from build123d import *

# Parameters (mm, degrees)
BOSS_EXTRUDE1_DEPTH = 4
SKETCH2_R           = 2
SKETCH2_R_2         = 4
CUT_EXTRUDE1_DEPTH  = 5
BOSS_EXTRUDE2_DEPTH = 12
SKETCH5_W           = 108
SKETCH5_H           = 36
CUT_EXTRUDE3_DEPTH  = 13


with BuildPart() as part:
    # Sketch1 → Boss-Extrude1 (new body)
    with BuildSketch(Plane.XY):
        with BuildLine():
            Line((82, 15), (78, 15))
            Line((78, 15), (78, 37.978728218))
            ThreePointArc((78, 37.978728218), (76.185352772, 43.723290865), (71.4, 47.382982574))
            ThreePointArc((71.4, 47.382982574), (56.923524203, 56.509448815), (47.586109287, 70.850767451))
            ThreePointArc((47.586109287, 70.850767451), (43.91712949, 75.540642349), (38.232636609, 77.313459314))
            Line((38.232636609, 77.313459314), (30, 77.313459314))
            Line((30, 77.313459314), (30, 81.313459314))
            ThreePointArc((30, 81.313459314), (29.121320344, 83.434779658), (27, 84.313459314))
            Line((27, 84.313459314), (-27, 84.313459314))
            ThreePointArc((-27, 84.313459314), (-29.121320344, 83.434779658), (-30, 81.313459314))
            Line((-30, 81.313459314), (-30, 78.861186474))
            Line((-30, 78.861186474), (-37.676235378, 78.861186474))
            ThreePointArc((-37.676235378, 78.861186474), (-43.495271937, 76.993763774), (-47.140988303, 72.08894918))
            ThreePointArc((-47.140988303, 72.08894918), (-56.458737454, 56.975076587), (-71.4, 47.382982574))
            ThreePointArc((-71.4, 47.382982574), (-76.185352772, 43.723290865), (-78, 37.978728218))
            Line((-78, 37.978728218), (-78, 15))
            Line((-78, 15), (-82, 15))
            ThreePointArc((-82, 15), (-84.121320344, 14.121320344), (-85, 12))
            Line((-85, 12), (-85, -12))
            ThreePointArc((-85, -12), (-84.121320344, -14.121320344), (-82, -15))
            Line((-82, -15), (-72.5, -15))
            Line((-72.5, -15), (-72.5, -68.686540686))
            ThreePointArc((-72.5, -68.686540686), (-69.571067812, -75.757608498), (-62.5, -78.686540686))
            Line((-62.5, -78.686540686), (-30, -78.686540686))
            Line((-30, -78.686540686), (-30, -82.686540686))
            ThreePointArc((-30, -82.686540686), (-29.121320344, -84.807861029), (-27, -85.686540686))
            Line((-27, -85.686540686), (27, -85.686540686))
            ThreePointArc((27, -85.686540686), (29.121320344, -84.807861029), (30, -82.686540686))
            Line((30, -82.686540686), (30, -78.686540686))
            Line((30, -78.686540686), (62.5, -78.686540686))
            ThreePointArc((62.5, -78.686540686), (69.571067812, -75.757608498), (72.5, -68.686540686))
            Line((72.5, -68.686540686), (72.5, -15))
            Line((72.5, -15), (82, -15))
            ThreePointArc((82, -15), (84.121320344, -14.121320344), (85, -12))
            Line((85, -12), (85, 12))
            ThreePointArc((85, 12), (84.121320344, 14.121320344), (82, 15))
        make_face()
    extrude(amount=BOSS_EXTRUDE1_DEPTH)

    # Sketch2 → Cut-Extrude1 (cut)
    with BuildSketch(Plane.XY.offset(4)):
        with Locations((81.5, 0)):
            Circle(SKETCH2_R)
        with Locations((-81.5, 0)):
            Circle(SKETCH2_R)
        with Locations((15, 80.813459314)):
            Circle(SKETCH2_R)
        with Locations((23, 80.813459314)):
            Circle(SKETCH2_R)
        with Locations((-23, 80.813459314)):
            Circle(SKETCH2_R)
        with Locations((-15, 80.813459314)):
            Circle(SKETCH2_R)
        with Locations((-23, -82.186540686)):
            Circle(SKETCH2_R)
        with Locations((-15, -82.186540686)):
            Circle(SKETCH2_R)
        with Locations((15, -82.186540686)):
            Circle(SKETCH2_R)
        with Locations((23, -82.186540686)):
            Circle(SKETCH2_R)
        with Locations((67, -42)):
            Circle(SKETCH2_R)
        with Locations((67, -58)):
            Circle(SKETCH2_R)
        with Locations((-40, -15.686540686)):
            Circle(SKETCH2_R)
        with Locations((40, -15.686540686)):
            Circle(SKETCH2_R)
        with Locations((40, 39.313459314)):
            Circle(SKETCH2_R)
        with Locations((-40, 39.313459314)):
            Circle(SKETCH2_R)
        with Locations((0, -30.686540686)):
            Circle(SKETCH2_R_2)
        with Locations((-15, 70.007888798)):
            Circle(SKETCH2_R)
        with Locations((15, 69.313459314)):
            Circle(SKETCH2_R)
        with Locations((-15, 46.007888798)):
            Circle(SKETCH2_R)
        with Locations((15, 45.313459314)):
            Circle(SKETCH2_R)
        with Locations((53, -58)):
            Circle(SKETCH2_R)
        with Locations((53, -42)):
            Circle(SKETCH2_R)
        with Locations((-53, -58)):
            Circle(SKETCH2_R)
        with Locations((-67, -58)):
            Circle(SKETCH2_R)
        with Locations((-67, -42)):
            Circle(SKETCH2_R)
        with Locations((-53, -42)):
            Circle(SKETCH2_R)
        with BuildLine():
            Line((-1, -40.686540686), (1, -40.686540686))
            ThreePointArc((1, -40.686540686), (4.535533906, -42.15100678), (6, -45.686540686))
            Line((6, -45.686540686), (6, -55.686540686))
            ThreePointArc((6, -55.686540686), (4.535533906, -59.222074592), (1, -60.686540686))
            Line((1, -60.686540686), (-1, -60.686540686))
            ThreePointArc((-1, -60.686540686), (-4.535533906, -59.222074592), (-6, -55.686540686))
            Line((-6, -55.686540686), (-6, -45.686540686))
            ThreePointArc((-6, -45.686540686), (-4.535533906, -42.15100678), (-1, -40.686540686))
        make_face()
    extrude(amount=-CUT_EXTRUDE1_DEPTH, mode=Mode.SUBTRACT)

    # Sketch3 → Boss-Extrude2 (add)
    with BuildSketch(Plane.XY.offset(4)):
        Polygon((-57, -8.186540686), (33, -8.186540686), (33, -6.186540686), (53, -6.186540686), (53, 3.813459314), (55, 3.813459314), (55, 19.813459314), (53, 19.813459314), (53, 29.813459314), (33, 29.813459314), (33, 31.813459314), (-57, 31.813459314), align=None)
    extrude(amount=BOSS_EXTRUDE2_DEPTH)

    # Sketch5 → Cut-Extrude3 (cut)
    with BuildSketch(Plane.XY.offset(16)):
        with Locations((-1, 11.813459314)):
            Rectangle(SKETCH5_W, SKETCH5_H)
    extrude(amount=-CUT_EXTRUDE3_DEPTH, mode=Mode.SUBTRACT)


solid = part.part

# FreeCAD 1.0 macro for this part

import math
import FreeCAD as App
import Part
import Sketcher
from FreeCAD import Vector
Q = App.Units.Quantity

doc = App.newDocument("Part")
body = doc.addObject("PartDesign::Body", "Body")

sketch1 = body.newObject("Sketcher::SketchObject", "Sketch")
sketch1.AttachmentSupport = (doc.getObject("XY_Plane"), [""])
sketch1.MapMode = "FlatFace"
sketch1.addGeometry(Part.LineSegment(Vector(82, 15, 0), Vector(78, 15, 0)), False)
sketch1.addGeometry(Part.LineSegment(Vector(78, 15, 0), Vector(78, 38, 0)), False)
sketch1.addGeometry(Part.ArcOfCircle(Part.Circle(Vector(68, 38, 0), Vector(0, 0, 1), 10), math.radians(0), math.radians(70)), False)
sketch1.addGeometry(Part.ArcOfCircle(Part.Circle(Vector(85, 85, 0), Vector(0, 0, 1), 40), math.radians(-159), math.radians(-110)), False)
sketch1.addGeometry(Part.ArcOfCircle(Part.Circle(Vector(38.2, 67.3, 0), Vector(0, 0, 1), 10), math.radians(21), math.radians(90)), False)
sketch1.addGeometry(Part.LineSegment(Vector(38.2, 77.3, 0), Vector(30, 77.3, 0)), False)
sketch1.addGeometry(Part.LineSegment(Vector(30, 77.3, 0), Vector(30, 81.3, 0)), False)
sketch1.addGeometry(Part.ArcOfCircle(Part.Circle(Vector(27, 81.3, 0), Vector(0, 0, 1), 3), math.radians(0), math.radians(90)), False)
sketch1.addGeometry(Part.LineSegment(Vector(27, 84.3, 0), Vector(-27, 84.3, 0)), False)
sketch1.addGeometry(Part.ArcOfCircle(Part.Circle(Vector(-27, 81.3, 0), Vector(0, 0, 1), 3), math.radians(90), math.radians(180)), False)
sketch1.addGeometry(Part.LineSegment(Vector(-30, 81.3, 0), Vector(-30, 78.9, 0)), False)
sketch1.addGeometry(Part.LineSegment(Vector(-30, 78.9, 0), Vector(-37.7, 78.9, 0)), False)
sketch1.addGeometry(Part.ArcOfCircle(Part.Circle(Vector(-37.7, 68.9, 0), Vector(0, 0, 1), 10), math.radians(90), math.radians(161)), False)
sketch1.addGeometry(Part.ArcOfCircle(Part.Circle(Vector(-85, 85, 0), Vector(0, 0, 1), 40), math.radians(-70), math.radians(-19)), False)
sketch1.addGeometry(Part.ArcOfCircle(Part.Circle(Vector(-68, 38, 0), Vector(0, 0, 1), 10), math.radians(110), math.radians(180)), False)
sketch1.addGeometry(Part.LineSegment(Vector(-78, 38, 0), Vector(-78, 15, 0)), False)
sketch1.addGeometry(Part.LineSegment(Vector(-78, 15, 0), Vector(-82, 15, 0)), False)
sketch1.addGeometry(Part.ArcOfCircle(Part.Circle(Vector(-82, 12, 0), Vector(0, 0, 1), 3), math.radians(90), math.radians(180)), False)
sketch1.addGeometry(Part.LineSegment(Vector(-85, 12, 0), Vector(-85, -12, 0)), False)
sketch1.addGeometry(Part.ArcOfCircle(Part.Circle(Vector(-82, -12, 0), Vector(0, 0, 1), 3), math.radians(180), math.radians(270)), False)
sketch1.addGeometry(Part.LineSegment(Vector(-82, -15, 0), Vector(-72.5, -15, 0)), False)
sketch1.addGeometry(Part.LineSegment(Vector(-72.5, -15, 0), Vector(-72.5, -68.7, 0)), False)
sketch1.addGeometry(Part.ArcOfCircle(Part.Circle(Vector(-62.5, -68.7, 0), Vector(0, 0, 1), 10), math.radians(180), math.radians(270)), False)
sketch1.addGeometry(Part.LineSegment(Vector(-62.5, -78.7, 0), Vector(-30, -78.7, 0)), False)
sketch1.addGeometry(Part.LineSegment(Vector(-30, -78.7, 0), Vector(-30, -82.7, 0)), False)
sketch1.addGeometry(Part.ArcOfCircle(Part.Circle(Vector(-27, -82.7, 0), Vector(0, 0, 1), 3), math.radians(180), math.radians(270)), False)
sketch1.addGeometry(Part.LineSegment(Vector(-27, -85.7, 0), Vector(27, -85.7, 0)), False)
sketch1.addGeometry(Part.ArcOfCircle(Part.Circle(Vector(27, -82.7, 0), Vector(0, 0, 1), 3), math.radians(-90), math.radians(0)), False)
sketch1.addGeometry(Part.LineSegment(Vector(30, -82.7, 0), Vector(30, -78.7, 0)), False)
sketch1.addGeometry(Part.LineSegment(Vector(30, -78.7, 0), Vector(62.5, -78.7, 0)), False)
sketch1.addGeometry(Part.ArcOfCircle(Part.Circle(Vector(62.5, -68.7, 0), Vector(0, 0, 1), 10), math.radians(-90), math.radians(0)), False)
sketch1.addGeometry(Part.LineSegment(Vector(72.5, -68.7, 0), Vector(72.5, -15, 0)), False)
sketch1.addGeometry(Part.LineSegment(Vector(72.5, -15, 0), Vector(82, -15, 0)), False)
sketch1.addGeometry(Part.ArcOfCircle(Part.Circle(Vector(82, -12, 0), Vector(0, 0, 1), 3), math.radians(-90), math.radians(0)), False)
sketch1.addGeometry(Part.LineSegment(Vector(85, -12, 0), Vector(85, 12, 0)), False)
sketch1.addGeometry(Part.ArcOfCircle(Part.Circle(Vector(82, 12, 0), Vector(0, 0, 1), 3), math.radians(0), math.radians(90)), False)
sketch1.addConstraint(Sketcher.Constraint("Coincident", 0, 2, 1, 1))
sketch1.addConstraint(Sketcher.Constraint("Tangent", 1, 2, 2, 1))
sketch1.addConstraint(Sketcher.Constraint("Tangent", 2, 2, 3, 2))
sketch1.addConstraint(Sketcher.Constraint("Tangent", 3, 1, 4, 1))
sketch1.addConstraint(Sketcher.Constraint("Tangent", 4, 2, 5, 1))
sketch1.addConstraint(Sketcher.Constraint("Coincident", 5, 2, 6, 1))
sketch1.addConstraint(Sketcher.Constraint("Tangent", 6, 2, 7, 1))
sketch1.addConstraint(Sketcher.Constraint("Tangent", 7, 2, 8, 1))
sketch1.addConstraint(Sketcher.Constraint("Tangent", 8, 2, 9, 1))
sketch1.addConstraint(Sketcher.Constraint("Tangent", 9, 2, 10, 1))
sketch1.addConstraint(Sketcher.Constraint("Coincident", 10, 2, 11, 1))
sketch1.addConstraint(Sketcher.Constraint("Tangent", 11, 2, 12, 1))
sketch1.addConstraint(Sketcher.Constraint("Tangent", 12, 2, 13, 2))
sketch1.addConstraint(Sketcher.Constraint("Tangent", 13, 1, 14, 1))
sketch1.addConstraint(Sketcher.Constraint("Tangent", 14, 2, 15, 1))
sketch1.addConstraint(Sketcher.Constraint("Coincident", 15, 2, 16, 1))
sketch1.addConstraint(Sketcher.Constraint("Tangent", 16, 2, 17, 1))
sketch1.addConstraint(Sketcher.Constraint("Tangent", 17, 2, 18, 1))
sketch1.addConstraint(Sketcher.Constraint("Tangent", 18, 2, 19, 1))
sketch1.addConstraint(Sketcher.Constraint("Tangent", 19, 2, 20, 1))
sketch1.addConstraint(Sketcher.Constraint("Coincident", 20, 2, 21, 1))
sketch1.addConstraint(Sketcher.Constraint("Tangent", 21, 2, 22, 1))
sketch1.addConstraint(Sketcher.Constraint("Tangent", 22, 2, 23, 1))
sketch1.addConstraint(Sketcher.Constraint("Coincident", 23, 2, 24, 1))
sketch1.addConstraint(Sketcher.Constraint("Tangent", 24, 2, 25, 1))
sketch1.addConstraint(Sketcher.Constraint("Tangent", 25, 2, 26, 1))
sketch1.addConstraint(Sketcher.Constraint("Tangent", 26, 2, 27, 1))
sketch1.addConstraint(Sketcher.Constraint("Tangent", 27, 2, 28, 1))
sketch1.addConstraint(Sketcher.Constraint("Coincident", 28, 2, 29, 1))
sketch1.addConstraint(Sketcher.Constraint("Tangent", 29, 2, 30, 1))
sketch1.addConstraint(Sketcher.Constraint("Tangent", 30, 2, 31, 1))
sketch1.addConstraint(Sketcher.Constraint("Coincident", 31, 2, 32, 1))
sketch1.addConstraint(Sketcher.Constraint("Tangent", 32, 2, 33, 1))
sketch1.addConstraint(Sketcher.Constraint("Tangent", 33, 2, 34, 1))
sketch1.addConstraint(Sketcher.Constraint("Tangent", 34, 2, 35, 1))
sketch1.addConstraint(Sketcher.Constraint("Tangent", 35, 2, 0, 1))
sketch1.addConstraint(Sketcher.Constraint("Horizontal", 0))
sketch1.addConstraint(Sketcher.Constraint("Vertical", 1))
sketch1.addConstraint(Sketcher.Constraint("Horizontal", 5))
sketch1.addConstraint(Sketcher.Constraint("Vertical", 6))
sketch1.addConstraint(Sketcher.Constraint("Horizontal", 8))
sketch1.addConstraint(Sketcher.Constraint("Vertical", 10))
sketch1.addConstraint(Sketcher.Constraint("Horizontal", 11))
sketch1.addConstraint(Sketcher.Constraint("Vertical", 15))
sketch1.addConstraint(Sketcher.Constraint("Horizontal", 16))
sketch1.addConstraint(Sketcher.Constraint("Vertical", 18))
sketch1.addConstraint(Sketcher.Constraint("Horizontal", 20))
sketch1.addConstraint(Sketcher.Constraint("Vertical", 21))
sketch1.addConstraint(Sketcher.Constraint("Horizontal", 23))
sketch1.addConstraint(Sketcher.Constraint("Vertical", 24))
sketch1.addConstraint(Sketcher.Constraint("Horizontal", 26))
sketch1.addConstraint(Sketcher.Constraint("Vertical", 28))
sketch1.addConstraint(Sketcher.Constraint("Horizontal", 29))
sketch1.addConstraint(Sketcher.Constraint("Vertical", 31))
sketch1.addConstraint(Sketcher.Constraint("Horizontal", 32))
sketch1.addConstraint(Sketcher.Constraint("Vertical", 34))
sketch1.addConstraint(Sketcher.Constraint("Equal", 2, 4))
sketch1.addConstraint(Sketcher.Constraint("Equal", 7, 9))
sketch1.addConstraint(Sketcher.Constraint("Equal", 4, 12))
sketch1.addConstraint(Sketcher.Constraint("Equal", 3, 13))
sketch1.addConstraint(Sketcher.Constraint("Equal", 12, 14))
sketch1.addConstraint(Sketcher.Constraint("Equal", 9, 17))
sketch1.addConstraint(Sketcher.Constraint("Equal", 17, 19))
sketch1.addConstraint(Sketcher.Constraint("Equal", 14, 22))
sketch1.addConstraint(Sketcher.Constraint("Equal", 19, 25))
sketch1.addConstraint(Sketcher.Constraint("Equal", 25, 27))
sketch1.addConstraint(Sketcher.Constraint("Equal", 22, 30))
sketch1.addConstraint(Sketcher.Constraint("Equal", 27, 33))
sketch1.addConstraint(Sketcher.Constraint("Equal", 33, 35))
sketch1.addConstraint(Sketcher.Constraint("Symmetric", 17, 3, 33, 3, -1, 1))
sketch1.addConstraint(Sketcher.Constraint("Symmetric", 3, 3, 13, 3, -2))
sketch1.addConstraint(Sketcher.Constraint("Symmetric", 22, 3, 30, 3, -2))
sketch1.addConstraint(Sketcher.Constraint("Symmetric", 0, 2, 15, 2, -2))
sketch1.addConstraint(Sketcher.Constraint("Horizontal", 19, 3, 33, 3))
sketch1.addConstraint(Sketcher.Constraint("Vertical", 9, 3, 25, 3))
sketch1.addConstraint(Sketcher.Constraint("Vertical", 7, 3, 27, 3))
sketch1.addConstraint(Sketcher.Constraint("Vertical", 13, 3, 17, 2))
sketch1.addConstraint(Sketcher.Constraint("Equal", 23, 29))
sketch1.addConstraint(Sketcher.Constraint("Equal", 16, 6))
sketch1.addConstraint(Sketcher.Constraint("Equal", 6, 24))
sketch1.addConstraint(Sketcher.Constraint("Radius", 2, Q("10 mm")))
sketch1.addConstraint(Sketcher.Constraint("Radius", 3, Q("40 mm")))
sketch1.addConstraint(Sketcher.Constraint("Radius", 7, Q("3 mm")))
sketch1.addConstraint(Sketcher.Constraint("DistanceX", 0, 2, 0, 1, Q("4 mm")))
sketch1.addConstraint(Sketcher.Constraint("DistanceX", 8, 2, 8, 1, Q("54 mm")))
sketch1.addConstraint(Sketcher.Constraint("DistanceY", 18, 2, 18, 1, Q("24 mm")))
sketch1.addConstraint(Sketcher.Constraint("DistanceX", 20, 1, 20, 2, Q("9.5 mm")))
sketch1.addConstraint(Sketcher.Constraint("DistanceX", 23, 1, 23, 2, Q("32.5 mm")))
sketch1.addConstraint(Sketcher.Constraint("DistanceY", -1, 1, 3, 3, Q("85 mm")))
sketch1.addConstraint(Sketcher.Constraint("DistanceY", 22, 3, 9, 3, Q("150 mm")))
sketch1.addConstraint(Sketcher.Constraint("DistanceY", 21, 2, 21, 1, Q("53.686541 mm")))
sketch1.addConstraint(Sketcher.Constraint("DistanceX", 11, 2, 11, 1, Q("7.676235 mm")))
pad1 = body.newObject("PartDesign::Pad", "Pad")
pad1.Profile = sketch1
pad1.Length = 4

sketch2 = body.newObject("Sketcher::SketchObject", "Sketch001")
sketch2.AttachmentSupport = (doc.getObject("XY_Plane"), [""])
sketch2.MapMode = "FlatFace"
sketch2.AttachmentOffset = App.Placement(Vector(0, 0, 4), App.Rotation())
sketch2.addGeometry(Part.Circle(Vector(81.5, 0, 0), Vector(0, 0, 1), 2), False)
sketch2.addGeometry(Part.Circle(Vector(-81.5, 0, 0), Vector(0, 0, 1), 2), False)
sketch2.addGeometry(Part.Circle(Vector(15, 80.8, 0), Vector(0, 0, 1), 2), False)
sketch2.addGeometry(Part.Circle(Vector(23, 80.8, 0), Vector(0, 0, 1), 2), False)
sketch2.addGeometry(Part.Circle(Vector(-23, 80.8, 0), Vector(0, 0, 1), 2), False)
sketch2.addGeometry(Part.Circle(Vector(-15, 80.8, 0), Vector(0, 0, 1), 2), False)
sketch2.addGeometry(Part.Circle(Vector(-23, -82.2, 0), Vector(0, 0, 1), 2), False)
sketch2.addGeometry(Part.Circle(Vector(-15, -82.2, 0), Vector(0, 0, 1), 2), False)
sketch2.addGeometry(Part.Circle(Vector(15, -82.2, 0), Vector(0, 0, 1), 2), False)
sketch2.addGeometry(Part.Circle(Vector(23, -82.2, 0), Vector(0, 0, 1), 2), False)
sketch2.addGeometry(Part.Circle(Vector(67, -42, 0), Vector(0, 0, 1), 2), False)
sketch2.addGeometry(Part.Circle(Vector(67, -58, 0), Vector(0, 0, 1), 2), False)
sketch2.addGeometry(Part.Circle(Vector(-40, -15.7, 0), Vector(0, 0, 1), 2), False)
sketch2.addGeometry(Part.Circle(Vector(40, -15.7, 0), Vector(0, 0, 1), 2), False)
sketch2.addGeometry(Part.Circle(Vector(40, 39.3, 0), Vector(0, 0, 1), 2), False)
sketch2.addGeometry(Part.Circle(Vector(-40, 39.3, 0), Vector(0, 0, 1), 2), False)
sketch2.addGeometry(Part.Circle(Vector(0, -30.7, 0), Vector(0, 0, 1), 4), False)
sketch2.addGeometry(Part.Circle(Vector(-15, 70, 0), Vector(0, 0, 1), 2), False)
sketch2.addGeometry(Part.Circle(Vector(15, 69.3, 0), Vector(0, 0, 1), 2), False)
sketch2.addGeometry(Part.Circle(Vector(-15, 46, 0), Vector(0, 0, 1), 2), False)
sketch2.addGeometry(Part.Circle(Vector(15, 45.3, 0), Vector(0, 0, 1), 2), False)
sketch2.addGeometry(Part.Circle(Vector(53, -58, 0), Vector(0, 0, 1), 2), False)
sketch2.addGeometry(Part.Circle(Vector(53, -42, 0), Vector(0, 0, 1), 2), False)
sketch2.addGeometry(Part.Circle(Vector(-53, -58, 0), Vector(0, 0, 1), 2), False)
sketch2.addGeometry(Part.Circle(Vector(-67, -58, 0), Vector(0, 0, 1), 2), False)
sketch2.addGeometry(Part.Circle(Vector(-67, -42, 0), Vector(0, 0, 1), 2), False)
sketch2.addGeometry(Part.Circle(Vector(-53, -42, 0), Vector(0, 0, 1), 2), False)
sketch2.addGeometry(Part.LineSegment(Vector(1, -40.7, 0), Vector(-1, -40.7, 0)), False)
sketch2.addGeometry(Part.ArcOfCircle(Part.Circle(Vector(-1, -45.7, 0), Vector(0, 0, 1), 5), math.radians(90), math.radians(180)), False)
sketch2.addGeometry(Part.LineSegment(Vector(-6, -45.7, 0), Vector(-6, -55.7, 0)), False)
sketch2.addGeometry(Part.ArcOfCircle(Part.Circle(Vector(-1, -55.7, 0), Vector(0, 0, 1), 5), math.radians(180), math.radians(270)), False)
sketch2.addGeometry(Part.LineSegment(Vector(-1, -60.7, 0), Vector(1, -60.7, 0)), False)
sketch2.addGeometry(Part.ArcOfCircle(Part.Circle(Vector(1, -55.7, 0), Vector(0, 0, 1), 5), math.radians(-90), math.radians(0)), False)
sketch2.addGeometry(Part.LineSegment(Vector(6, -55.7, 0), Vector(6, -45.7, 0)), False)
sketch2.addGeometry(Part.ArcOfCircle(Part.Circle(Vector(1, -45.7, 0), Vector(0, 0, 1), 5), math.radians(0), math.radians(90)), False)
sketch2.addConstraint(Sketcher.Constraint("Tangent", 27, 2, 28, 1))
sketch2.addConstraint(Sketcher.Constraint("Tangent", 28, 2, 29, 1))
sketch2.addConstraint(Sketcher.Constraint("Tangent", 29, 2, 30, 1))
sketch2.addConstraint(Sketcher.Constraint("Tangent", 30, 2, 31, 1))
sketch2.addConstraint(Sketcher.Constraint("Tangent", 31, 2, 32, 1))
sketch2.addConstraint(Sketcher.Constraint("Tangent", 32, 2, 33, 1))
sketch2.addConstraint(Sketcher.Constraint("Tangent", 33, 2, 34, 1))
sketch2.addConstraint(Sketcher.Constraint("Tangent", 34, 2, 27, 1))
sketch2.addConstraint(Sketcher.Constraint("Horizontal", 27))
sketch2.addConstraint(Sketcher.Constraint("Vertical", 29))
sketch2.addConstraint(Sketcher.Constraint("Horizontal", 31))
sketch2.addConstraint(Sketcher.Constraint("Vertical", 33))
sketch2.addConstraint(Sketcher.Constraint("Equal", 0, 1))
sketch2.addConstraint(Sketcher.Constraint("Equal", 1, 2))
sketch2.addConstraint(Sketcher.Constraint("Equal", 2, 3))
sketch2.addConstraint(Sketcher.Constraint("Equal", 3, 4))
sketch2.addConstraint(Sketcher.Constraint("Equal", 4, 5))
sketch2.addConstraint(Sketcher.Constraint("Equal", 5, 6))
sketch2.addConstraint(Sketcher.Constraint("Equal", 6, 7))
sketch2.addConstraint(Sketcher.Constraint("Equal", 7, 8))
sketch2.addConstraint(Sketcher.Constraint("Equal", 8, 9))
sketch2.addConstraint(Sketcher.Constraint("Equal", 9, 10))
sketch2.addConstraint(Sketcher.Constraint("Equal", 10, 11))
sketch2.addConstraint(Sketcher.Constraint("Equal", 11, 12))
sketch2.addConstraint(Sketcher.Constraint("Equal", 12, 13))
sketch2.addConstraint(Sketcher.Constraint("Equal", 13, 14))
sketch2.addConstraint(Sketcher.Constraint("Equal", 14, 15))
sketch2.addConstraint(Sketcher.Constraint("Equal", 15, 17))
sketch2.addConstraint(Sketcher.Constraint("Equal", 17, 18))
sketch2.addConstraint(Sketcher.Constraint("Equal", 18, 19))
sketch2.addConstraint(Sketcher.Constraint("Equal", 19, 20))
sketch2.addConstraint(Sketcher.Constraint("Equal", 20, 21))
sketch2.addConstraint(Sketcher.Constraint("Equal", 21, 22))
sketch2.addConstraint(Sketcher.Constraint("Equal", 22, 23))
sketch2.addConstraint(Sketcher.Constraint("Equal", 23, 24))
sketch2.addConstraint(Sketcher.Constraint("Equal", 24, 25))
sketch2.addConstraint(Sketcher.Constraint("Equal", 25, 26))
sketch2.addConstraint(Sketcher.Constraint("Equal", 28, 30))
sketch2.addConstraint(Sketcher.Constraint("Equal", 30, 32))
sketch2.addConstraint(Sketcher.Constraint("Equal", 32, 34))
sketch2.addConstraint(Sketcher.Constraint("Symmetric", 0, 3, 1, 3, -1, 1))
sketch2.addConstraint(Sketcher.Constraint("Symmetric", 3, 3, 4, 3, -2))
sketch2.addConstraint(Sketcher.Constraint("Symmetric", 2, 3, 5, 3, -2))
sketch2.addConstraint(Sketcher.Constraint("Symmetric", 7, 3, 8, 3, -2))
sketch2.addConstraint(Sketcher.Constraint("Symmetric", 6, 3, 9, 3, -2))
sketch2.addConstraint(Sketcher.Constraint("Symmetric", 12, 3, 13, 3, -2))
sketch2.addConstraint(Sketcher.Constraint("Symmetric", 14, 3, 15, 3, -2))
sketch2.addConstraint(Sketcher.Constraint("Symmetric", 21, 3, 23, 3, -2))
sketch2.addConstraint(Sketcher.Constraint("Symmetric", 11, 3, 24, 3, -2))
sketch2.addConstraint(Sketcher.Constraint("Symmetric", 10, 3, 25, 3, -2))
sketch2.addConstraint(Sketcher.Constraint("Symmetric", 22, 3, 26, 3, -2))
sketch2.addConstraint(Sketcher.Constraint("PointOnObject", 0, 3, -1))
sketch2.addConstraint(Sketcher.Constraint("PointOnObject", 16, 3, -2))
sketch2.addConstraint(Sketcher.Constraint("Horizontal", 2, 3, 3, 3))
sketch2.addConstraint(Sketcher.Constraint("Horizontal", 6, 3, 7, 3))
sketch2.addConstraint(Sketcher.Constraint("Horizontal", 11, 3, 21, 3))
sketch2.addConstraint(Sketcher.Constraint("Horizontal", 10, 3, 22, 3))
sketch2.addConstraint(Sketcher.Constraint("Vertical", 4, 3, 6, 3))
sketch2.addConstraint(Sketcher.Constraint("Vertical", 5, 3, 7, 3))
sketch2.addConstraint(Sketcher.Constraint("Vertical", 10, 3, 11, 3))
sketch2.addConstraint(Sketcher.Constraint("Vertical", 13, 3, 14, 3))
sketch2.addConstraint(Sketcher.Constraint("Vertical", 7, 3, 17, 3))
sketch2.addConstraint(Sketcher.Constraint("Vertical", 8, 3, 18, 3))
sketch2.addConstraint(Sketcher.Constraint("Vertical", 17, 3, 19, 3))
sketch2.addConstraint(Sketcher.Constraint("Vertical", 18, 3, 20, 3))
sketch2.addConstraint(Sketcher.Constraint("Vertical", 21, 3, 22, 3))
sketch2.addConstraint(Sketcher.Constraint("Diameter", 0, Q("4 mm")))
sketch2.addConstraint(Sketcher.Constraint("Diameter", 16, Q("8 mm")))
sketch2.addConstraint(Sketcher.Constraint("Radius", 28, Q("5 mm")))
sketch2.addConstraint(Sketcher.Constraint("DistanceX", 27, 2, 27, 1, Q("2 mm")))
sketch2.addConstraint(Sketcher.Constraint("DistanceY", 29, 2, 29, 1, Q("10 mm")))
sketch2.addConstraint(Sketcher.Constraint("DistanceX", -1, 1, 2, 3, Q("15 mm")))
sketch2.addConstraint(Sketcher.Constraint("DistanceX", -1, 1, 3, 3, Q("23 mm")))
sketch2.addConstraint(Sketcher.Constraint("DistanceX", -1, 1, 10, 3, Q("67 mm")))
sketch2.addConstraint(Sketcher.Constraint("DistanceY", 10, 3, -1, 1, Q("42 mm")))
sketch2.addConstraint(Sketcher.Constraint("DistanceY", 11, 3, -1, 1, Q("58 mm")))
sketch2.addConstraint(Sketcher.Constraint("DistanceX", 12, 3, -1, 1, Q("40 mm")))
sketch2.addConstraint(Sketcher.Constraint("DistanceX", -1, 1, 21, 3, Q("53 mm")))
sketch2.addConstraint(Sketcher.Constraint("DistanceX", 28, 3, -1, 1, Q("1 mm")))
sketch2.addConstraint(Sketcher.Constraint("DistanceX", 1, 3, 0, 3, Q("163 mm")))
sketch2.addConstraint(Sketcher.Constraint("DistanceY", 6, 3, 4, 3, Q("163 mm")))
sketch2.addConstraint(Sketcher.Constraint("DistanceY", 13, 3, 14, 3, Q("55 mm")))
sketch2.addConstraint(Sketcher.Constraint("DistanceY", 16, 3, 12, 3, Q("15 mm")))
sketch2.addConstraint(Sketcher.Constraint("DistanceY", 14, 3, 18, 3, Q("30 mm")))
sketch2.addConstraint(Sketcher.Constraint("DistanceY", 19, 3, 17, 3, Q("24 mm")))
sketch2.addConstraint(Sketcher.Constraint("DistanceY", 20, 3, 18, 3, Q("24 mm")))
sketch2.addConstraint(Sketcher.Constraint("DistanceY", 28, 3, 16, 3, Q("15 mm")))
sketch2.addConstraint(Sketcher.Constraint("DistanceY", 6, 3, 12, 3, Q("66.5 mm")))
sketch2.addConstraint(Sketcher.Constraint("DistanceY", -1, 1, 2, 3, Q("80.813459 mm")))
sketch2.addConstraint(Sketcher.Constraint("DistanceY", -1, 1, 17, 3, Q("70.007889 mm")))
pocket1 = body.newObject("PartDesign::Pocket", "Pocket")
pocket1.Profile = sketch2
pocket1.Length = 5

sketch3 = body.newObject("Sketcher::SketchObject", "Sketch002")
sketch3.AttachmentSupport = (doc.getObject("XY_Plane"), [""])
sketch3.MapMode = "FlatFace"
sketch3.AttachmentOffset = App.Placement(Vector(0, 0, 4), App.Rotation())
sketch3.addGeometry(Part.LineSegment(Vector(-57, -8.2, 0), Vector(33, -8.2, 0)), False)
sketch3.addGeometry(Part.LineSegment(Vector(33, -8.2, 0), Vector(33, -6.2, 0)), False)
sketch3.addGeometry(Part.LineSegment(Vector(33, -6.2, 0), Vector(53, -6.2, 0)), False)
sketch3.addGeometry(Part.LineSegment(Vector(53, -6.2, 0), Vector(53, 3.8, 0)), False)
sketch3.addGeometry(Part.LineSegment(Vector(53, 3.8, 0), Vector(55, 3.8, 0)), False)
sketch3.addGeometry(Part.LineSegment(Vector(55, 3.8, 0), Vector(55, 19.8, 0)), False)
sketch3.addGeometry(Part.LineSegment(Vector(55, 19.8, 0), Vector(53, 19.8, 0)), False)
sketch3.addGeometry(Part.LineSegment(Vector(53, 19.8, 0), Vector(53, 29.8, 0)), False)
sketch3.addGeometry(Part.LineSegment(Vector(53, 29.8, 0), Vector(33, 29.8, 0)), False)
sketch3.addGeometry(Part.LineSegment(Vector(33, 29.8, 0), Vector(33, 31.8, 0)), False)
sketch3.addGeometry(Part.LineSegment(Vector(33, 31.8, 0), Vector(-57, 31.8, 0)), False)
sketch3.addGeometry(Part.LineSegment(Vector(-57, 31.8, 0), Vector(-57, -8.2, 0)), False)
sketch3.addConstraint(Sketcher.Constraint("Coincident", 0, 2, 1, 1))
sketch3.addConstraint(Sketcher.Constraint("Coincident", 1, 2, 2, 1))
sketch3.addConstraint(Sketcher.Constraint("Coincident", 2, 2, 3, 1))
sketch3.addConstraint(Sketcher.Constraint("Coincident", 3, 2, 4, 1))
sketch3.addConstraint(Sketcher.Constraint("Coincident", 4, 2, 5, 1))
sketch3.addConstraint(Sketcher.Constraint("Coincident", 5, 2, 6, 1))
sketch3.addConstraint(Sketcher.Constraint("Coincident", 6, 2, 7, 1))
sketch3.addConstraint(Sketcher.Constraint("Coincident", 7, 2, 8, 1))
sketch3.addConstraint(Sketcher.Constraint("Coincident", 8, 2, 9, 1))
sketch3.addConstraint(Sketcher.Constraint("Coincident", 9, 2, 10, 1))
sketch3.addConstraint(Sketcher.Constraint("Coincident", 10, 2, 11, 1))
sketch3.addConstraint(Sketcher.Constraint("Coincident", 11, 2, 0, 1))
sketch3.addConstraint(Sketcher.Constraint("Horizontal", 0))
sketch3.addConstraint(Sketcher.Constraint("Vertical", 1))
sketch3.addConstraint(Sketcher.Constraint("Horizontal", 2))
sketch3.addConstraint(Sketcher.Constraint("Vertical", 3))
sketch3.addConstraint(Sketcher.Constraint("Horizontal", 4))
sketch3.addConstraint(Sketcher.Constraint("Vertical", 5))
sketch3.addConstraint(Sketcher.Constraint("Horizontal", 6))
sketch3.addConstraint(Sketcher.Constraint("Vertical", 7))
sketch3.addConstraint(Sketcher.Constraint("Horizontal", 8))
sketch3.addConstraint(Sketcher.Constraint("Vertical", 9))
sketch3.addConstraint(Sketcher.Constraint("Horizontal", 10))
sketch3.addConstraint(Sketcher.Constraint("Vertical", 11))
sketch3.addConstraint(Sketcher.Constraint("Vertical", 3, 2, 6, 2))
sketch3.addConstraint(Sketcher.Constraint("Vertical", 1, 2, 8, 2))
sketch3.addConstraint(Sketcher.Constraint("Equal", 6, 1))
sketch3.addConstraint(Sketcher.Constraint("Equal", 3, 7))
sketch3.addConstraint(Sketcher.Constraint("Equal", 1, 9))
sketch3.addConstraint(Sketcher.Constraint("DistanceX", 0, 1, 0, 2, Q("90 mm")))
sketch3.addConstraint(Sketcher.Constraint("DistanceX", 2, 1, 2, 2, Q("20 mm")))
sketch3.addConstraint(Sketcher.Constraint("DistanceX", 4, 1, 4, 2, Q("2 mm")))
sketch3.addConstraint(Sketcher.Constraint("DistanceY", 3, 1, 3, 2, Q("10 mm")))
sketch3.addConstraint(Sketcher.Constraint("DistanceY", 5, 1, 5, 2, Q("16 mm")))
sketch3.addConstraint(Sketcher.Constraint("DistanceX", -1, 1, 0, 2, Q("33 mm")))
sketch3.addConstraint(Sketcher.Constraint("DistanceY", 0, 2, -1, 1, Q("8.186541 mm")))
pad2 = body.newObject("PartDesign::Pad", "Pad001")
pad2.Profile = sketch3
pad2.Length = 12

sketch4 = body.newObject("Sketcher::SketchObject", "Sketch003")
sketch4.AttachmentSupport = (doc.getObject("XY_Plane"), [""])
sketch4.MapMode = "FlatFace"
sketch4.AttachmentOffset = App.Placement(Vector(0, 0, 16), App.Rotation())
sketch4.addGeometry(Part.LineSegment(Vector(-55, 30, 0), Vector(-55, -6, 0)), False)
sketch4.addGeometry(Part.LineSegment(Vector(-55, -6, 0), Vector(53, -6, 0)), False)
sketch4.addGeometry(Part.LineSegment(Vector(53, -6, 0), Vector(53, 30, 0)), False)
sketch4.addGeometry(Part.LineSegment(Vector(53, 30, 0), Vector(-55, 30, 0)), False)
sketch4.addConstraint(Sketcher.Constraint("Coincident", 0, 2, 1, 1))
sketch4.addConstraint(Sketcher.Constraint("Coincident", 1, 2, 2, 1))
sketch4.addConstraint(Sketcher.Constraint("Coincident", 2, 2, 3, 1))
sketch4.addConstraint(Sketcher.Constraint("Coincident", 3, 2, 0, 1))
sketch4.addConstraint(Sketcher.Constraint("Vertical", 0))
sketch4.addConstraint(Sketcher.Constraint("Horizontal", 1))
sketch4.addConstraint(Sketcher.Constraint("Vertical", 2))
sketch4.addConstraint(Sketcher.Constraint("Horizontal", 3))
sketch4.addConstraint(Sketcher.Constraint("DistanceX", 1, 1, 1, 2, Q("108 mm")))
sketch4.addConstraint(Sketcher.Constraint("DistanceY", 0, 2, 0, 1, Q("36 mm")))
sketch4.addConstraint(Sketcher.Constraint("DistanceX", 0, 2, -1, 1, Q("55 mm")))
sketch4.addConstraint(Sketcher.Constraint("DistanceY", 0, 2, -1, 1, Q("6.186541 mm")))
pocket2 = body.newObject("PartDesign::Pocket", "Pocket001")
pocket2.Profile = sketch4
pocket2.Length = 13

doc.recompute()
